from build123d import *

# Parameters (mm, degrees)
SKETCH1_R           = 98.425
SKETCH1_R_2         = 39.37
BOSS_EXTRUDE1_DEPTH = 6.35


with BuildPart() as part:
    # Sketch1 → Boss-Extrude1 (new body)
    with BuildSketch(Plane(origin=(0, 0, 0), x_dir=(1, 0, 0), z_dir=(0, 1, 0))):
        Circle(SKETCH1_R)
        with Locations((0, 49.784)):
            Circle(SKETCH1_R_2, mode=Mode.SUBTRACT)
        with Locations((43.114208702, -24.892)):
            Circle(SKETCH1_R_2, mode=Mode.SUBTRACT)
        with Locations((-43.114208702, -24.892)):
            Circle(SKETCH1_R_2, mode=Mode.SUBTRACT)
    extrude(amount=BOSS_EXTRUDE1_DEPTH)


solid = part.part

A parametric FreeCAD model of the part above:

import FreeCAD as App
import Part
import Sketcher

V = App.Vector
Q = App.Units.Quantity

doc = App.newDocument("Part")
body = doc.addObject("PartDesign::Body", "Body")

# Sketch on XZ plane
sketch1 = body.newObject("Sketcher::SketchObject", "Sketch")
sketch1.AttachmentSupport = (doc.getObject("XZ_Plane"), [""])
sketch1.MapMode = "FlatFace"
sketch1.addGeometry([
    Part.Circle(V(0, 0, 0), V(0, 0, 1), 98),
    Part.Circle(V(-43, 25, 0), V(0, 0, 1), 39),
    Part.Circle(V(43, 25, 0), V(0, 0, 1), 39),
    Part.Circle(V(0, -50, 0), V(0, 0, 1), 39),
], False)
sketch1.addConstraint([
    Sketcher.Constraint("Coincident", 0, 3, -1, 1),
    Sketcher.Constraint("Equal", 1, 2),
    Sketcher.Constraint("Equal", 2, 3),
    Sketcher.Constraint("Symmetric", 1, 3, 2, 3, -2),
    Sketcher.Constraint("PointOnObject", 3, 3, -2),
    Sketcher.Constraint("Diameter", 1, Q("3.1 in")),
    Sketcher.Constraint("Diameter", 0, Q("7.75 in")),
    Sketcher.Constraint("DistanceY", -1, 1, 1, 3, Q("0.98 in")),
    Sketcher.Constraint("DistanceY", 3, 3, -1, 1, Q("1.96 in")),
    Sketcher.Constraint("DistanceX", 1, 3, -1, 1, Q("43.114209 mm")),
])
pad1 = body.newObject("PartDesign::Pad", "Pad")
pad1.Profile = sketch1
pad1.Length = Q("0.25 in")
pad1.Reversed = True

doc.recompute()
